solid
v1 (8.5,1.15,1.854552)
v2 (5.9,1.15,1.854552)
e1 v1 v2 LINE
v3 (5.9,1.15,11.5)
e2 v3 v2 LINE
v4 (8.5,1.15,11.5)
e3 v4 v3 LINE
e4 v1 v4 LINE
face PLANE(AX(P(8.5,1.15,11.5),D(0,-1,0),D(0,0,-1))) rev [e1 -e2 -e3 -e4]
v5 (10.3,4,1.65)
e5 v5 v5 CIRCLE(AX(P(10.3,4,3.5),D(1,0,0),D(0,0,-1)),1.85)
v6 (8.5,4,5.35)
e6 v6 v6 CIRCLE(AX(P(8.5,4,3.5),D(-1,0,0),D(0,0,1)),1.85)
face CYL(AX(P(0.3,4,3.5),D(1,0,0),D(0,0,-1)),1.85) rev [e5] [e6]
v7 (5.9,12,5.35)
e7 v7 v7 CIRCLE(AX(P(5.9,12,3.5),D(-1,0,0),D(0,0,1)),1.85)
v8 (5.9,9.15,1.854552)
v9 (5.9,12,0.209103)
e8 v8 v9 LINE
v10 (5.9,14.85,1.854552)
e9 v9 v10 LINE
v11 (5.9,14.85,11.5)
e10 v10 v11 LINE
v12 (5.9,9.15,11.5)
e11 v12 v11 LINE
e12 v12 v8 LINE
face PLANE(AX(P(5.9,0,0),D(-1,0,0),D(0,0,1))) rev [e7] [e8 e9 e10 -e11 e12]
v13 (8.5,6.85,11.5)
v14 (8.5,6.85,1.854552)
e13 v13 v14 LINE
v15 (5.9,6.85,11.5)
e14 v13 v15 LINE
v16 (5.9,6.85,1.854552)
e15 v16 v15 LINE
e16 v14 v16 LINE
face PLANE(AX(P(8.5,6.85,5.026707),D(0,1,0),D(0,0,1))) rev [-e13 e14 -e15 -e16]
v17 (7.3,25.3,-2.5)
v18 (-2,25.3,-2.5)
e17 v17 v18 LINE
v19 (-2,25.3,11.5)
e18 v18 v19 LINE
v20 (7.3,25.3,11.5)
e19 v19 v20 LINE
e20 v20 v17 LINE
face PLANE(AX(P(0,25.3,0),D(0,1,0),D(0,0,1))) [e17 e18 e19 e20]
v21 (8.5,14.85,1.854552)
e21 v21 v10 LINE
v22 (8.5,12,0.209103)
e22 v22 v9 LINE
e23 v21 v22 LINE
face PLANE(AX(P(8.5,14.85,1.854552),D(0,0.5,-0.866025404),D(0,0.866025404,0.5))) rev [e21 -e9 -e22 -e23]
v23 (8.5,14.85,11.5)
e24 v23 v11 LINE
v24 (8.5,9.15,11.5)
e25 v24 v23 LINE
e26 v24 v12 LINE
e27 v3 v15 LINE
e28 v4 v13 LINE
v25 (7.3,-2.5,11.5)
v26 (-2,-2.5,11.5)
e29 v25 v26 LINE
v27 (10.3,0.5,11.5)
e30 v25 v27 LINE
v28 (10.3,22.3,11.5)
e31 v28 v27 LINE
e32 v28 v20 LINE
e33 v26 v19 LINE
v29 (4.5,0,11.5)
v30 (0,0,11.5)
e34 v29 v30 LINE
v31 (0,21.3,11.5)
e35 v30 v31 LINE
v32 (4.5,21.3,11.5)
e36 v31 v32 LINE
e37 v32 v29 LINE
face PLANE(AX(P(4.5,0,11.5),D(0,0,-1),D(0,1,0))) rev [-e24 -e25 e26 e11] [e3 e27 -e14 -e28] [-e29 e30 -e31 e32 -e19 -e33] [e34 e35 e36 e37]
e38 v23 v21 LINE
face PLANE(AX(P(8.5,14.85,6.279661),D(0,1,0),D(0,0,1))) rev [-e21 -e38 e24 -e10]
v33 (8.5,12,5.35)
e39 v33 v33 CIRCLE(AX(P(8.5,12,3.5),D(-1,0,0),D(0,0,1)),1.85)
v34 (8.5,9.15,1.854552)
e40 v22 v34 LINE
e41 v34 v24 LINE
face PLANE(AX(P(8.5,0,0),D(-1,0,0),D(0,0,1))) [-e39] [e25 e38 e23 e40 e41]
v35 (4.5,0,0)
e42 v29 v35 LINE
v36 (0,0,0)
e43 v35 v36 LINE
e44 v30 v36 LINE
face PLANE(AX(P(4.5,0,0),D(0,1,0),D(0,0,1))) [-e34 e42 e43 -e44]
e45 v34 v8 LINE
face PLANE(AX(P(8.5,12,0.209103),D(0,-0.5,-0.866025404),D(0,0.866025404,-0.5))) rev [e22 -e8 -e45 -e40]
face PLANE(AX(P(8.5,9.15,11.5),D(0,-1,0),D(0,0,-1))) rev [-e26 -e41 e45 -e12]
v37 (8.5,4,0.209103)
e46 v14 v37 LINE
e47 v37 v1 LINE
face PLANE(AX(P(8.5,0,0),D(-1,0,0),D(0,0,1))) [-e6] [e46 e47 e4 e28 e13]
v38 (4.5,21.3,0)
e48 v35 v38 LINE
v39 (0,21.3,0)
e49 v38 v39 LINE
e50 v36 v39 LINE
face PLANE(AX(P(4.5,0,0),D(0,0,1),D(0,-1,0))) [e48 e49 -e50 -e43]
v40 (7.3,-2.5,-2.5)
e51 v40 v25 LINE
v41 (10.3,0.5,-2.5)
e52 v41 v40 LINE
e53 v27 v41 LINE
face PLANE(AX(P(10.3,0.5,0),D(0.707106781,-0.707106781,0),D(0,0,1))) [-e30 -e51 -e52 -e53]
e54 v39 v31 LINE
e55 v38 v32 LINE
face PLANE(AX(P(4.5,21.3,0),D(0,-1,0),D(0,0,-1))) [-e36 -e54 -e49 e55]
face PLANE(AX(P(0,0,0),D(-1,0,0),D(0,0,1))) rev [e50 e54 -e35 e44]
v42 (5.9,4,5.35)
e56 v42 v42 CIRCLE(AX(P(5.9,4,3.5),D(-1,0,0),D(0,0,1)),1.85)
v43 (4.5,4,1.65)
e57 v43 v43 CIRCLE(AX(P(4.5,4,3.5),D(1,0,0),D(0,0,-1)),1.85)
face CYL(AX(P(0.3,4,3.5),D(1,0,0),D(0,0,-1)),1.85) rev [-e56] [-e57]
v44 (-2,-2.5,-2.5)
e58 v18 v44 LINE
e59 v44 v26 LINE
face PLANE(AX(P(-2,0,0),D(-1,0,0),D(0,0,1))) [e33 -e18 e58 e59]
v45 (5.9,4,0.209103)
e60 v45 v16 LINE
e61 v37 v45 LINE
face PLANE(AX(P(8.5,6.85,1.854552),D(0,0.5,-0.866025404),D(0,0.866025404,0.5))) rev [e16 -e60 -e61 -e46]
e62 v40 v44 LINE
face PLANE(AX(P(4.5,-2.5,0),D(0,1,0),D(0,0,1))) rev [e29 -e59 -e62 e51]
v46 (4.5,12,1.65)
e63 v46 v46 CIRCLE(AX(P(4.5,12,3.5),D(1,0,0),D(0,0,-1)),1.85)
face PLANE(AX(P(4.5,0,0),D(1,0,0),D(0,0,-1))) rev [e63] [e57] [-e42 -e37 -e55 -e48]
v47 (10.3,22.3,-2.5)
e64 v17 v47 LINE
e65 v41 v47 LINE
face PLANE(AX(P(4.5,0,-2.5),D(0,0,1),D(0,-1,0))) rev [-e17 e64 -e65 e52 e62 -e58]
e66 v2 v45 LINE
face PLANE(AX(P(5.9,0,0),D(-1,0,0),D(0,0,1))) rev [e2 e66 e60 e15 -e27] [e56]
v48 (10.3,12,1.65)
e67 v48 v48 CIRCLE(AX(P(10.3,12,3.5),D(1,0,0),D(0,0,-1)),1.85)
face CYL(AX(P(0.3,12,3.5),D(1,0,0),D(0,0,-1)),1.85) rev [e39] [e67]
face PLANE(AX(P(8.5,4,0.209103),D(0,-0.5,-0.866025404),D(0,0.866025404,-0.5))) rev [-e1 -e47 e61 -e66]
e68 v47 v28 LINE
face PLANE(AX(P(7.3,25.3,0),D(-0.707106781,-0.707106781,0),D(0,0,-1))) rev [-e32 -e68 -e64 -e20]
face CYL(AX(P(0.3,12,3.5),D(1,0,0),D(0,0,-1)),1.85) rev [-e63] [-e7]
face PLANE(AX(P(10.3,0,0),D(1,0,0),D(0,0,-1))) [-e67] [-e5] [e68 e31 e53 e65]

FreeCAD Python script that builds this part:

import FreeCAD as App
import Part
import Sketcher
Q = App.Units.Quantity


def edges_at(feature, points):
    """Names of the edges that pass closest to the given points."""
    edges = feature.Shape.Edges
    near = lambda p: min(range(len(edges)), key=lambda i: edges[i].distToShape(Part.Vertex(*p))[0])
    return sorted({f"Edge{near(p) + 1}" for p in points})

doc = App.newDocument("Part")
body = doc.addObject("PartDesign::Body", "Body")

sketch1 = body.newObject("Sketcher::SketchObject", "Sketch")
sketch1.AttachmentSupport = (doc.getObject("YZ_Plane"), [""])
sketch1.MapMode = "FlatFace"
sketch1.addGeometry([
    Part.LineSegment(App.Vector(-2.5, 11.5, 0), App.Vector(-2.5, -2.5, 0)),
    Part.LineSegment(App.Vector(-2.5, -2.5, 0), App.Vector(23.8, -2.5, 0)),
    Part.LineSegment(App.Vector(23.8, -2.5, 0), App.Vector(23.8, 11.5, 0)),
    Part.LineSegment(App.Vector(23.8, 11.5, 0), App.Vector(-2.5, 11.5, 0)),
    Part.LineSegment(App.Vector(21.3, 0, 0), App.Vector(0, 0, 0)),
    Part.LineSegment(App.Vector(0, 0, 0), App.Vector(0, 9, 0)),
    Part.LineSegment(App.Vector(0, 9, 0), App.Vector(21.3, 9, 0)),
    Part.LineSegment(App.Vector(21.3, 9, 0), App.Vector(21.3, 0, 0)),
], False)
sketch1.addConstraint([
    Sketcher.Constraint("Coincident", 0, 2, 1, 1),
    Sketcher.Constraint("Coincident", 1, 2, 2, 1),
    Sketcher.Constraint("Coincident", 2, 2, 3, 1),
    Sketcher.Constraint("Coincident", 3, 2, 0, 1),
    Sketcher.Constraint("Coincident", 4, 2, 5, 1),
    Sketcher.Constraint("Coincident", 5, 2, 6, 1),
    Sketcher.Constraint("Coincident", 6, 2, 7, 1),
    Sketcher.Constraint("Coincident", 7, 2, 4, 1),
    Sketcher.Constraint("Vertical", 0),
    Sketcher.Constraint("Horizontal", 1),
    Sketcher.Constraint("Vertical", 2),
    Sketcher.Constraint("Horizontal", 3),
    Sketcher.Constraint("Horizontal", 4),
    Sketcher.Constraint("Vertical", 5),
    Sketcher.Constraint("Horizontal", 6),
    Sketcher.Constraint("Vertical", 7),
    Sketcher.Constraint("Coincident", 4, 2, -1, 1),
    Sketcher.Constraint("DistanceY", 0, 2, 0, 1, 14.0),
    Sketcher.Constraint("DistanceY", 5, 1, 5, 2, 9.0),
    Sketcher.Constraint("DistanceX", 1, 1, 1, 2, 26.3),
    Sketcher.Constraint("DistanceX", 4, 2, 4, 1, 21.3),
    Sketcher.Constraint("DistanceX", 0, 2, -1, 1, 2.5),
    Sketcher.Constraint("DistanceY", 0, 2, -1, 1, 2.5),
])
pad1 = body.newObject("PartDesign::Pad", "Pad")
pad1.Profile = sketch1
pad1.Length = 4.5

sketch2 = body.newObject("Sketcher::SketchObject", "Sketch001")
sketch2.AttachmentSupport = (doc.getObject("YZ_Plane"), [""])
sketch2.MapMode = "FlatFace"
sketch2.AttachmentOffset = App.Placement(App.Vector(0, 0, 4.5), App.Rotation())
sketch2.addGeometry([
    Part.LineSegment(App.Vector(-2.5, 11.5, 0), App.Vector(-2.5, -2.5, 0)),
    Part.LineSegment(App.Vector(-2.5, -2.5, 0), App.Vector(23.8, -2.5, 0)),
    Part.LineSegment(App.Vector(23.8, -2.5, 0), App.Vector(23.8, 11.5, 0)),
    Part.LineSegment(App.Vector(23.8, 11.5, 0), App.Vector(-2.5, 11.5, 0)),
], False)
sketch2.addConstraint([
    Sketcher.Constraint("Coincident", 0, 2, 1, 1),
    Sketcher.Constraint("Coincident", 1, 2, 2, 1),
    Sketcher.Constraint("Coincident", 2, 2, 3, 1),
    Sketcher.Constraint("Coincident", 3, 2, 0, 1),
    Sketcher.Constraint("Vertical", 0),
    Sketcher.Constraint("Horizontal", 1),
    Sketcher.Constraint("Vertical", 2),
    Sketcher.Constraint("Horizontal", 3),
    Sketcher.Constraint("DistanceY", 0, 2, 0, 1, 14.0),
    Sketcher.Constraint("DistanceX", 1, 1, 1, 2, 26.3),
    Sketcher.Constraint("DistanceX", 0, 2, -1, 1, 2.5),
    Sketcher.Constraint("DistanceY", 0, 2, -1, 1, 2.5),
])
pad2 = body.newObject("PartDesign::Pad", "Pad001")
pad2.Profile = sketch2
pad2.Length = 5.8

sketch3 = body.newObject("Sketcher::SketchObject", "Sketch002")
sketch3.AttachmentSupport = (doc.getObject("YZ_Plane"), [""])
sketch3.MapMode = "FlatFace"
sketch3.addGeometry([
    Part.LineSegment(App.Vector(23.8, 11.5, 0), App.Vector(23.8, -2.5, 0)),
    Part.LineSegment(App.Vector(23.8, -2.5, 0), App.Vector(-2.5, -2.5, 0)),
    Part.LineSegment(App.Vector(-2.5, -2.5, 0), App.Vector(-2.5, 11.5, 0)),
    Part.LineSegment(App.Vector(-2.5, 11.5, 0), App.Vector(23.8, 11.5, 0)),
], False)
sketch3.addConstraint([
    Sketcher.Constraint("Coincident", 0, 2, 1, 1),
    Sketcher.Constraint("Coincident", 1, 2, 2, 1),
    Sketcher.Constraint("Coincident", 2, 2, 3, 1),
    Sketcher.Constraint("Coincident", 3, 2, 0, 1),
    Sketcher.Constraint("Vertical", 0),
    Sketcher.Constraint("Horizontal", 1),
    Sketcher.Constraint("Vertical", 2),
    Sketcher.Constraint("Horizontal", 3),
    Sketcher.Constraint("DistanceY", 0, 2, 0, 1, 14.0),
    Sketcher.Constraint("DistanceX", 1, 2, 1, 1, 26.3),
    Sketcher.Constraint("DistanceX", -1, 1, 0, 2, 23.8),
    Sketcher.Constraint("DistanceY", 0, 2, -1, 1, 2.5),
])
pad3 = body.newObject("PartDesign::Pad", "Pad002")
pad3.Profile = sketch3
pad3.Length = 2
pad3.Reversed = True

sketch4 = body.newObject("Sketcher::SketchObject", "Sketch003")
sketch4.AttachmentSupport = (doc.getObject("XY_Plane"), [""])
sketch4.MapMode = "FlatFace"
sketch4.AttachmentOffset = App.Placement(App.Vector(0, 0, 9), App.Rotation())
sketch4.addGeometry([
    Part.LineSegment(App.Vector(0, 0, 0), App.Vector(0, 21.3, 0)),
    Part.LineSegment(App.Vector(0, 21.3, 0), App.Vector(4.5, 21.3, 0)),
    Part.LineSegment(App.Vector(4.5, 21.3, 0), App.Vector(4.5, 0, 0)),
    Part.LineSegment(App.Vector(4.5, 0, 0), App.Vector(0, 0, 0)),
], False)
sketch4.addConstraint([
    Sketcher.Constraint("Coincident", 0, 2, 1, 1),
    Sketcher.Constraint("Coincident", 1, 2, 2, 1),
    Sketcher.Constraint("Coincident", 2, 2, 3, 1),
    Sketcher.Constraint("Coincident", 3, 2, 0, 1),
    Sketcher.Constraint("Vertical", 0),
    Sketcher.Constraint("Horizontal", 1),
    Sketcher.Constraint("Vertical", 2),
    Sketcher.Constraint("Horizontal", 3),
    Sketcher.Constraint("Coincident", 3, 2, -1, 1),
    Sketcher.Constraint("DistanceX", 1, 1, 1, 2, 4.5),
    Sketcher.Constraint("DistanceY", 0, 1, 0, 2, 21.3),
])
pocket1 = body.newObject("PartDesign::Pocket", "Pocket")
pocket1.Profile = sketch4
pocket1.Length = 18
pocket1.Reversed = True

sketch5 = body.newObject("Sketcher::SketchObject", "Sketch004")
sketch5.AttachmentSupport = (doc.getObject("YZ_Plane"), [""])
sketch5.MapMode = "FlatFace"
sketch5.AttachmentOffset = App.Placement(App.Vector(0, 0, 4.5), App.Rotation())
sketch5.addGeometry([
    Part.LineSegment(App.Vector(14.85, 11.5, 0), App.Vector(14.85, 1.854552, 0)),
    Part.LineSegment(App.Vector(14.85, 1.854552, 0), App.Vector(12, 0.209103, 0)),
    Part.LineSegment(App.Vector(12, 0.209103, 0), App.Vector(9.15, 1.854552, 0)),
    Part.LineSegment(App.Vector(9.15, 1.854552, 0), App.Vector(9.15, 11.5, 0)),
    Part.LineSegment(App.Vector(9.15, 11.5, 0), App.Vector(14.85, 11.5, 0)),
    Part.LineSegment(App.Vector(6.85, 1.854552, 0), App.Vector(4, 0.209103, 0)),
    Part.LineSegment(App.Vector(4, 0.209103, 0), App.Vector(1.15, 1.854552, 0)),
    Part.LineSegment(App.Vector(1.15, 1.854552, 0), App.Vector(1.15, 11.5, 0)),
    Part.LineSegment(App.Vector(1.15, 11.5, 0), App.Vector(6.85, 11.5, 0)),
    Part.LineSegment(App.Vector(6.85, 11.5, 0), App.Vector(6.85, 1.854552, 0)),
], False)
sketch5.addConstraint([
    Sketcher.Constraint("Coincident", 0, 2, 1, 1),
    Sketcher.Constraint("Coincident", 1, 2, 2, 1),
    Sketcher.Constraint("Coincident", 2, 2, 3, 1),
    Sketcher.Constraint("Coincident", 3, 2, 4, 1),
    Sketcher.Constraint("Coincident", 4, 2, 0, 1),
    Sketcher.Constraint("Coincident", 5, 2, 6, 1),
    Sketcher.Constraint("Coincident", 6, 2, 7, 1),
    Sketcher.Constraint("Coincident", 7, 2, 8, 1),
    Sketcher.Constraint("Coincident", 8, 2, 9, 1),
    Sketcher.Constraint("Coincident", 9, 2, 5, 1),
    Sketcher.Constraint("Vertical", 0),
    Sketcher.Constraint("Vertical", 3),
    Sketcher.Constraint("Horizontal", 4),
    Sketcher.Constraint("Vertical", 7),
    Sketcher.Constraint("Horizontal", 8),
    Sketcher.Constraint("Vertical", 9),
    Sketcher.Constraint("Parallel", 1, 5),
    Sketcher.Constraint("Parallel", 2, 6),
    Sketcher.Constraint("Horizontal", 0, 2, 2, 2),
    Sketcher.Constraint("Horizontal", 1, 2, 5, 2),
    Sketcher.Constraint("Horizontal", 2, 2, 6, 2),
    Sketcher.Constraint("Horizontal", 4, 2, 7, 2),
    Sketcher.Constraint("Horizontal", 6, 2, 9, 2),
    Sketcher.Constraint("Equal", 1, 2),
    Sketcher.Constraint("Angle", 1, Q("-150 deg")),
    Sketcher.Constraint("DistanceX", 4, 1, 4, 2, 5.7),
    Sketcher.Constraint("DistanceX", -1, 1, 1, 2, 12.0),
    Sketcher.Constraint("DistanceX", -1, 1, 5, 2, 4.0),
    Sketcher.Constraint("DistanceY", -1, 1, 3, 2, 11.5),
    Sketcher.Constraint("DistanceY", 0, 2, 0, 1, 9.645448),
])
pocket2 = body.newObject("PartDesign::Pocket", "Pocket001")
pocket2.Profile = sketch5
pocket2.Length = 4
pocket2.Reversed = True

sketch6 = body.newObject("Sketcher::SketchObject", "Sketch005")
sketch6.AttachmentSupport = (doc.getObject("YZ_Plane"), [""])
sketch6.MapMode = "FlatFace"
sketch6.AttachmentOffset = App.Placement(App.Vector(0, 0, 4.5), App.Rotation())
sketch6.addGeometry([
    Part.LineSegment(App.Vector(21.3, 11.5, 0), App.Vector(21.3, 0, 0)),
    Part.LineSegment(App.Vector(21.3, 0, 0), App.Vector(0, 0, 0)),
    Part.LineSegment(App.Vector(0, 0, 0), App.Vector(0, 11.5, 0)),
    Part.LineSegment(App.Vector(0, 11.5, 0), App.Vector(21.3, 11.5, 0)),
], False)
sketch6.addConstraint([
    Sketcher.Constraint("Coincident", 0, 2, 1, 1),
    Sketcher.Constraint("Coincident", 1, 2, 2, 1),
    Sketcher.Constraint("Coincident", 2, 2, 3, 1),
    Sketcher.Constraint("Coincident", 3, 2, 0, 1),
    Sketcher.Constraint("Vertical", 0),
    Sketcher.Constraint("Horizontal", 1),
    Sketcher.Constraint("Vertical", 2),
    Sketcher.Constraint("Horizontal", 3),
    Sketcher.Constraint("Coincident", 1, 2, -1, 1),
    Sketcher.Constraint("DistanceX", 1, 2, 1, 1, 21.3),
    Sketcher.Constraint("DistanceY", 0, 2, 0, 1, 11.5),
])
pad4 = body.newObject("PartDesign::Pad", "Pad003")
pad4.Profile = sketch6
pad4.Length = 1.4

sketch7 = body.newObject("Sketcher::SketchObject", "Sketch006")
sketch7.AttachmentSupport = (doc.getObject("YZ_Plane"), [""])
sketch7.MapMode = "FlatFace"
sketch7.AttachmentOffset = App.Placement(App.Vector(0, 0, 10.3), App.Rotation())
sketch7.addGeometry([
    Part.Circle(App.Vector(4, 3.5, 0), App.Vector(0, 0, 1), 1.85),
    Part.Circle(App.Vector(12, 3.5, 0), App.Vector(0, 0, 1), 1.85),
], False)
sketch7.addConstraint([
    Sketcher.Constraint("Equal", 0, 1),
    Sketcher.Constraint("Horizontal", 0, 3, 1, 3),
    Sketcher.Constraint("Diameter", 0, 3.7),
    Sketcher.Constraint("DistanceX", -1, 1, 0, 3, 4.0),
    Sketcher.Constraint("DistanceX", -1, 1, 1, 3, 12.0),
    Sketcher.Constraint("DistanceY", -1, 1, 0, 3, 3.5),
])
pocket3 = body.newObject("PartDesign::Pocket", "Pocket002")
pocket3.Profile = sketch7
pocket3.Length = 10

sketch8 = body.newObject("Sketcher::SketchObject", "Sketch007")
sketch8.AttachmentSupport = (doc.getObject("XZ_Plane"), [""])
sketch8.MapMode = "FlatFace"
sketch8.AttachmentOffset = App.Placement(App.Vector(0, 0, -23.8), App.Rotation())
sketch8.addGeometry([
    Part.LineSegment(App.Vector(10.3, 11.5, 0), App.Vector(10.3, -2.5, 0)),
    Part.LineSegment(App.Vector(10.3, -2.5, 0), App.Vector(-2, -2.5, 0)),
    Part.LineSegment(App.Vector(-2, -2.5, 0), App.Vector(-2, 11.5, 0)),
    Part.LineSegment(App.Vector(-2, 11.5, 0), App.Vector(10.3, 11.5, 0)),
], False)
sketch8.addConstraint([
    Sketcher.Constraint("Coincident", 0, 2, 1, 1),
    Sketcher.Constraint("Coincident", 1, 2, 2, 1),
    Sketcher.Constraint("Coincident", 2, 2, 3, 1),
    Sketcher.Constraint("Coincident", 3, 2, 0, 1),
    Sketcher.Constraint("Vertical", 0),
    Sketcher.Constraint("Horizontal", 1),
    Sketcher.Constraint("Vertical", 2),
    Sketcher.Constraint("Horizontal", 3),
    Sketcher.Constraint("DistanceY", 0, 2, 0, 1, 14.0),
    Sketcher.Constraint("DistanceX", 1, 2, 1, 1, 12.3),
    Sketcher.Constraint("DistanceX", 1, 2, -1, 1, 2.0),
    Sketcher.Constraint("DistanceY", 0, 2, -1, 1, 2.5),
])
pad5 = body.newObject("PartDesign::Pad", "Pad004")
pad5.Profile = sketch8
pad5.Length = 1.5
pad5.Reversed = True
doc.recompute()

chamfer = body.newObject("PartDesign::Chamfer", "Chamfer")
chamfer.Base = (pad5, edges_at(pad5, [(10.3, 25.3, 4.5), (10.3, -2.5, 4.5)]))
chamfer.Size = 3

doc.recompute()
